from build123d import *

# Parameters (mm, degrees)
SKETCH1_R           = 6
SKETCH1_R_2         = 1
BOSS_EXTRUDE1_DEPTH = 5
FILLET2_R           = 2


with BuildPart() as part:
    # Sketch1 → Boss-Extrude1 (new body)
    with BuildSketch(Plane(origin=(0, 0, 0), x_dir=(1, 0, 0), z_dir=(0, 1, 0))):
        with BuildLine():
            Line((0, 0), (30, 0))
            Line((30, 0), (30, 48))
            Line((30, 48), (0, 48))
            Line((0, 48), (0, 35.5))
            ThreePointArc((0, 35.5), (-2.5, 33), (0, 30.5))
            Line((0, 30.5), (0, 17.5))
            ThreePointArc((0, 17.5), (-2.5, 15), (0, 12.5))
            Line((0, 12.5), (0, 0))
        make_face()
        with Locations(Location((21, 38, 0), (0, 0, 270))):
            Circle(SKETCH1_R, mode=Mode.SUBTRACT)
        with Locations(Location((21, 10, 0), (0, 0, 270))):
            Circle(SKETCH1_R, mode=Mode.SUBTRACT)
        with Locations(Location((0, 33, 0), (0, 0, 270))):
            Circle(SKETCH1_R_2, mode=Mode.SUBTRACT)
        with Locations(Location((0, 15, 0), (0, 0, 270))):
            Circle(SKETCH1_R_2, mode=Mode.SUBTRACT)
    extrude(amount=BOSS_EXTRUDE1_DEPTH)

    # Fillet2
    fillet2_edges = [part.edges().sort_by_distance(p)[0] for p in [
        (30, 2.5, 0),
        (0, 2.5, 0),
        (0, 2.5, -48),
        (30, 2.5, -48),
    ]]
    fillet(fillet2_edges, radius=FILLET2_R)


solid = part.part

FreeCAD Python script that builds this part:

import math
import FreeCAD as App
import Part
import Sketcher
Q = App.Units.Quantity


def edges_at(feature, points):
    """Names of the edges that pass closest to the given points."""
    edges = feature.Shape.Edges
    near = lambda p: min(range(len(edges)), key=lambda i: edges[i].distToShape(Part.Vertex(*p))[0])
    return sorted({f"Edge{near(p) + 1}" for p in points})

doc = App.newDocument("Part")
body = doc.addObject("PartDesign::Body", "Body")

sketch1 = body.newObject("Sketcher::SketchObject", "Sketch")
sketch1.AttachmentSupport = (doc.getObject("XZ_Plane"), [""])
sketch1.MapMode = "FlatFace"
sketch1.addGeometry([
    Part.LineSegment(App.Vector(0, 0, 0), App.Vector(30, 0, 0)),
    Part.LineSegment(App.Vector(30, 0, 0), App.Vector(30, -48, 0)),
    Part.LineSegment(App.Vector(30, -48, 0), App.Vector(0, -48, 0)),
    Part.LineSegment(App.Vector(0, -48, 0), App.Vector(0, -35.5, 0)),
    Part.ArcOfCircle(Part.Circle(App.Vector(0, -33, 0), App.Vector(0, 0, 1), 2.5), math.radians(90), math.radians(270)),
    Part.LineSegment(App.Vector(0, -30.5, 0), App.Vector(0, -17.5, 0)),
    Part.ArcOfCircle(Part.Circle(App.Vector(0, -15, 0), App.Vector(0, 0, 1), 2.5), math.radians(90), math.radians(270)),
    Part.LineSegment(App.Vector(0, -12.5, 0), App.Vector(0, 0, 0)),
    Part.Circle(App.Vector(0, -15, 0), App.Vector(0, 0, 1), 1),
    Part.Circle(App.Vector(21, -10, 0), App.Vector(0, 0, 1), 6),
    Part.Circle(App.Vector(0, -33, 0), App.Vector(0, 0, 1), 1),
    Part.Circle(App.Vector(21, -38, 0), App.Vector(0, 0, 1), 6),
], False)
sketch1.addConstraint([
    Sketcher.Constraint("Coincident", 0, 2, 1, 1),
    Sketcher.Constraint("Coincident", 1, 2, 2, 1),
    Sketcher.Constraint("Coincident", 2, 2, 3, 1),
    Sketcher.Constraint("Coincident", 3, 2, 4, 2),
    Sketcher.Constraint("Coincident", 4, 1, 5, 1),
    Sketcher.Constraint("Coincident", 5, 2, 6, 2),
    Sketcher.Constraint("Coincident", 6, 1, 7, 1),
    Sketcher.Constraint("Coincident", 7, 2, 0, 1),
    Sketcher.Constraint("Horizontal", 0),
    Sketcher.Constraint("Vertical", 1),
    Sketcher.Constraint("Horizontal", 2),
    Sketcher.Constraint("Vertical", 3),
    Sketcher.Constraint("Vertical", 5),
    Sketcher.Constraint("Vertical", 7),
    Sketcher.Constraint("Coincident", 7, 2, -1, 1),
    Sketcher.Constraint("Coincident", 8, 3, 6, 3),
    Sketcher.Constraint("Coincident", 10, 3, 4, 3),
    Sketcher.Constraint("Equal", 4, 6),
    Sketcher.Constraint("Equal", 8, 10),
    Sketcher.Constraint("Equal", 9, 11),
    Sketcher.Constraint("PointOnObject", 4, 3, -2),
    Sketcher.Constraint("PointOnObject", 6, 3, -2),
    Sketcher.Constraint("PointOnObject", 2, 2, -2),
    Sketcher.Constraint("PointOnObject", 4, 1, -2),
    Sketcher.Constraint("Vertical", 9, 3, 11, 3),
    Sketcher.Constraint("Equal", 3, 7),
    Sketcher.Constraint("Diameter", 8, Q("2 mm")),
    Sketcher.Constraint("Diameter", 9, Q("12 mm")),
    Sketcher.Constraint("Radius", 4, Q("2.5 mm")),
    Sketcher.Constraint("DistanceX", 0, 1, 0, 2, Q("30 mm")),
    Sketcher.Constraint("DistanceY", 1, 2, 1, 1, Q("48 mm")),
    Sketcher.Constraint("DistanceY", 5, 1, 5, 2, Q("13 mm")),
    Sketcher.Constraint("DistanceX", -1, 1, 9, 3, Q("21 mm")),
    Sketcher.Constraint("DistanceY", 9, 3, -1, 1, Q("10 mm")),
    Sketcher.Constraint("DistanceY", 11, 3, -1, 1, Q("38 mm")),
])
pad1 = body.newObject("PartDesign::Pad", "Pad")
pad1.Profile = sketch1
pad1.Length = 5
pad1.Reversed = True
doc.recompute()

fillet = body.newObject("PartDesign::Fillet", "Fillet")
fillet.Base = (pad1, edges_at(pad1, [
    (30, 2.5, 0),
    (0, 2.5, 0),
    (0, 2.5, -48),
    (30, 2.5, -48),
]))
fillet.Radius = 2

doc.recompute()
